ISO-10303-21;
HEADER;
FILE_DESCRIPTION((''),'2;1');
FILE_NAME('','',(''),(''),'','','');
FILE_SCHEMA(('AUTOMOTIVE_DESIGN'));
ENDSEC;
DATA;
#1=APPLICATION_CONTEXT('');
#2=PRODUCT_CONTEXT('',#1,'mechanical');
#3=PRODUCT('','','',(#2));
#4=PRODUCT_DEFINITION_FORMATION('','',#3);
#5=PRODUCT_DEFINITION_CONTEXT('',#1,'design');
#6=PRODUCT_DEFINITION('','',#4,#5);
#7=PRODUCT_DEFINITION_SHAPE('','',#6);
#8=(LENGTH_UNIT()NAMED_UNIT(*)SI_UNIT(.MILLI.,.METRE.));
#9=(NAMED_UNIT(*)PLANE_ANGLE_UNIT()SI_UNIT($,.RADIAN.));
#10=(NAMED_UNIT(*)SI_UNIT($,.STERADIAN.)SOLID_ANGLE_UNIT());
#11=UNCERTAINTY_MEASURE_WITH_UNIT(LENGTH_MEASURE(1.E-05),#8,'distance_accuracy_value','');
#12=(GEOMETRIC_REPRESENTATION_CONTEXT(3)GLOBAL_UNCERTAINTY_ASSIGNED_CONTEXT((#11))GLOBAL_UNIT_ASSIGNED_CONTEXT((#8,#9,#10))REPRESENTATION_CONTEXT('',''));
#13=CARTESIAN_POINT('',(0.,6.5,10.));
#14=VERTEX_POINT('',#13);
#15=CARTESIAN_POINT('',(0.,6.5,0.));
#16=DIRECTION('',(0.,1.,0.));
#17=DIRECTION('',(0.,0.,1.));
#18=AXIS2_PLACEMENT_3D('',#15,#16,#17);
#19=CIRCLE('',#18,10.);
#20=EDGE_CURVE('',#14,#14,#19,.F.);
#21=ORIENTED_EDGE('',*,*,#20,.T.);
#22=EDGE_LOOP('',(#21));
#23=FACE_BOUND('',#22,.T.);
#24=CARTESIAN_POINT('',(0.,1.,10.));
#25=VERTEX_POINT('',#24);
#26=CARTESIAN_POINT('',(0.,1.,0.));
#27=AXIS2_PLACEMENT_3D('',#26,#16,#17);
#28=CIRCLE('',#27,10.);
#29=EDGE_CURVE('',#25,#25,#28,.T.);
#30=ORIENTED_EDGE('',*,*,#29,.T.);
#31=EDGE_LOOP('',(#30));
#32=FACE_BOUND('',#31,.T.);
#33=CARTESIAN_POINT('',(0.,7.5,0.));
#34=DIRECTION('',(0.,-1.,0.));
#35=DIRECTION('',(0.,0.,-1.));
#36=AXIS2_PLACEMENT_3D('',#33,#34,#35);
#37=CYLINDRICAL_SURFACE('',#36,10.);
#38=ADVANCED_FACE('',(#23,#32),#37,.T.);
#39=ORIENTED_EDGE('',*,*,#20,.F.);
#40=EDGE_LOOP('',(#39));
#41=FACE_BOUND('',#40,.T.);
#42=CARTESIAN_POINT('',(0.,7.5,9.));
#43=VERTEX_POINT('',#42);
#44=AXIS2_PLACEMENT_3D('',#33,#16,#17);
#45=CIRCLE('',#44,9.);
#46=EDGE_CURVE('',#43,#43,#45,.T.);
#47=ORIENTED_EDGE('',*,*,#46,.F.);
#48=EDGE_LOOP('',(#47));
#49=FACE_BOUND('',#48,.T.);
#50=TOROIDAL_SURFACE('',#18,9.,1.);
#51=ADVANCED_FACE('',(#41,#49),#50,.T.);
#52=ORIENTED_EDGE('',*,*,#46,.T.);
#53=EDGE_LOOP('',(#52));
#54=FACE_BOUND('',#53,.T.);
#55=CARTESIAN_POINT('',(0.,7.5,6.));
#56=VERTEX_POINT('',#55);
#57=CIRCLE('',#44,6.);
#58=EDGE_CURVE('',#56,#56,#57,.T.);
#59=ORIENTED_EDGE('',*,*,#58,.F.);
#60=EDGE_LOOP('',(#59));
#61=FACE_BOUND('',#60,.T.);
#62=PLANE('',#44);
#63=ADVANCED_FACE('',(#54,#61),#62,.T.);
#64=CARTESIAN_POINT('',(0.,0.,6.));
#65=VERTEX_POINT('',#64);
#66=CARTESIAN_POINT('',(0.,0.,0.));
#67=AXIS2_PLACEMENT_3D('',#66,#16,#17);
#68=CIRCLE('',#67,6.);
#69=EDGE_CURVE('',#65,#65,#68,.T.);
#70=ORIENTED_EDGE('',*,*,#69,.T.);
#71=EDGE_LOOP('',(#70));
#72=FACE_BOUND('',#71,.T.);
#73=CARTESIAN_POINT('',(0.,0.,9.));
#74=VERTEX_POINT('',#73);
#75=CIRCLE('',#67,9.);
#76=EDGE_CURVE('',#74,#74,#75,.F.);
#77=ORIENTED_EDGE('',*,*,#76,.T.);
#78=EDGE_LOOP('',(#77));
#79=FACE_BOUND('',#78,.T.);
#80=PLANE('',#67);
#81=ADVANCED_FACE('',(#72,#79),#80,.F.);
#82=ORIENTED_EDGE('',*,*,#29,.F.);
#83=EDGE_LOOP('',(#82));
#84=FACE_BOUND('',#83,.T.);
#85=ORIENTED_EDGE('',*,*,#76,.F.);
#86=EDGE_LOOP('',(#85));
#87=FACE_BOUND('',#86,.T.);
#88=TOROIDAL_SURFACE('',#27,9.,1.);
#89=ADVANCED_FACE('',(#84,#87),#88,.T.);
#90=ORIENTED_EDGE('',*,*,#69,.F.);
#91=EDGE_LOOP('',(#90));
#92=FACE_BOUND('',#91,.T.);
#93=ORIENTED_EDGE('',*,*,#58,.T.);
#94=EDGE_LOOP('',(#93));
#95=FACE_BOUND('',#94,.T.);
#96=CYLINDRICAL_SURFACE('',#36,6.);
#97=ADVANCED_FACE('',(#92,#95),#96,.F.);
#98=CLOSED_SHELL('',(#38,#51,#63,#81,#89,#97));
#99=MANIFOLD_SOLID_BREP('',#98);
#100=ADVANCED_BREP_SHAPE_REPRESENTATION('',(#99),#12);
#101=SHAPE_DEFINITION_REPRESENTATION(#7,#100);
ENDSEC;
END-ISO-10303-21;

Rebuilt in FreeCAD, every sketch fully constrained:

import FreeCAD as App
import Part
import Sketcher
from FreeCAD import Vector
Q = App.Units.Quantity


def edges_at(feature, points):
    """Names of the edges that pass closest to the given points."""
    edges = feature.Shape.Edges
    near = lambda p: min(range(len(edges)), key=lambda i: edges[i].distToShape(Part.Vertex(*p))[0])
    return sorted({f"Edge{near(p) + 1}" for p in points})

doc = App.newDocument("Part")
body = doc.addObject("PartDesign::Body", "Body")

# Sketch on XZ plane
sketch1 = body.newObject("Sketcher::SketchObject", "Sketch")
sketch1.AttachmentSupport = (doc.getObject("XZ_Plane"), [""])
sketch1.MapMode = "FlatFace"
sketch1.addGeometry([
    Part.Circle(Vector(0, 0, 0), Vector(0, 0, 1), 10),
    Part.Circle(Vector(0, 0, 0), Vector(0, 0, 1), 6),
], False)
sketch1.addConstraint([
    Sketcher.Constraint("Coincident", 0, 3, -1, 1),
    Sketcher.Constraint("Coincident", 1, 3, -1, 1),
    Sketcher.Constraint("Diameter", 0, Q("20 mm")),
    Sketcher.Constraint("Diameter", 1, Q("12 mm")),
])
pad1 = body.newObject("PartDesign::Pad", "Pad")
pad1.Profile = sketch1
pad1.Length = 7.5
pad1.Reversed = True
doc.recompute()

fillet = body.newObject("PartDesign::Fillet", "Fillet")
fillet.Base = (pad1, edges_at(pad1, [(-10, 0, 0), (-10, 7.5, 0)]))
fillet.Radius = 1

doc.recompute()
